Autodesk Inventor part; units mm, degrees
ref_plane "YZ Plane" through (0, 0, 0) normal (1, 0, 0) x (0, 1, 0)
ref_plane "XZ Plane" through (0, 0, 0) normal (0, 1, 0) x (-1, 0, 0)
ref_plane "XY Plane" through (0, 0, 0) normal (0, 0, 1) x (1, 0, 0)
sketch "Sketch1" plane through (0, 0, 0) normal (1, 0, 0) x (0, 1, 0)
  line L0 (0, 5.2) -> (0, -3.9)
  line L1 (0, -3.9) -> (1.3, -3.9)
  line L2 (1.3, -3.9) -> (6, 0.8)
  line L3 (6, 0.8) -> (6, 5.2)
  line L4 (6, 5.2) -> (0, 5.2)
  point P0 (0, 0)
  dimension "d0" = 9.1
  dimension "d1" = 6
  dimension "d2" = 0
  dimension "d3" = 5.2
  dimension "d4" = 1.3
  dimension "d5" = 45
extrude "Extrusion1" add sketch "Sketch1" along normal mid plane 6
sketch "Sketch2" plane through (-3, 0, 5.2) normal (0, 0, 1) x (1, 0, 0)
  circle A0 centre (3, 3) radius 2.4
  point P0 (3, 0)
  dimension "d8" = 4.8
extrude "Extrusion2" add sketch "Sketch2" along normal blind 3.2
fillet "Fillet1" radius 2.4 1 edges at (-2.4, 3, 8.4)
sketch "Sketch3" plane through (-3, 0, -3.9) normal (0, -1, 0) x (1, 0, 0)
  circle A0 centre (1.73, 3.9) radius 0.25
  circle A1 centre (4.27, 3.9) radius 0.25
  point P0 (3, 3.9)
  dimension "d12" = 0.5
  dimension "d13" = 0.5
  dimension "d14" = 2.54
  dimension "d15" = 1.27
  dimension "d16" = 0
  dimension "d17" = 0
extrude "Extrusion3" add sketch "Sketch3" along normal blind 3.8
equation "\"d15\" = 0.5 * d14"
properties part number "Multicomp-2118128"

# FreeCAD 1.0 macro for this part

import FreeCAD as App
import Part
import Sketcher
from FreeCAD import Vector
Q = App.Units.Quantity


def edges_at(feature, points):
    """Names of the edges that pass closest to the given points."""
    edges = feature.Shape.Edges
    near = lambda p: min(range(len(edges)), key=lambda i: edges[i].distToShape(Part.Vertex(*p))[0])
    return sorted({f"Edge{near(p) + 1}" for p in points})

doc = App.newDocument("Part")
body = doc.addObject("PartDesign::Body", "Body")

# Sketch on YZ plane
sketch1 = body.newObject("Sketcher::SketchObject", "Sketch")
sketch1.AttachmentSupport = (doc.getObject("YZ_Plane"), [""])
sketch1.MapMode = "FlatFace"
sketch1.addGeometry(Part.LineSegment(Vector(6, 5.2, 0), Vector(0, 5.2, 0)), False)
sketch1.addGeometry(Part.LineSegment(Vector(0, 5.2, 0), Vector(0, -3.9, 0)), False)
sketch1.addGeometry(Part.LineSegment(Vector(0, -3.9, 0), Vector(1.3, -3.9, 0)), False)
sketch1.addGeometry(Part.LineSegment(Vector(1.3, -3.9, 0), Vector(6, 0.8, 0)), False)
sketch1.addGeometry(Part.LineSegment(Vector(6, 0.8, 0), Vector(6, 5.2, 0)), False)
sketch1.addConstraint(Sketcher.Constraint("Coincident", 0, 2, 1, 1))
sketch1.addConstraint(Sketcher.Constraint("Coincident", 1, 2, 2, 1))
sketch1.addConstraint(Sketcher.Constraint("Coincident", 2, 2, 3, 1))
sketch1.addConstraint(Sketcher.Constraint("Coincident", 3, 2, 4, 1))
sketch1.addConstraint(Sketcher.Constraint("Coincident", 4, 2, 0, 1))
sketch1.addConstraint(Sketcher.Constraint("Horizontal", 0))
sketch1.addConstraint(Sketcher.Constraint("Vertical", 1))
sketch1.addConstraint(Sketcher.Constraint("Horizontal", 2))
sketch1.addConstraint(Sketcher.Constraint("Vertical", 4))
sketch1.addConstraint(Sketcher.Constraint("PointOnObject", 0, 2, -2))
sketch1.addConstraint(Sketcher.Constraint("DistanceX", 0, 2, 0, 1, Q("6 mm")))
sketch1.addConstraint(Sketcher.Constraint("Angle", 3, Q("45 deg")))
sketch1.addConstraint(Sketcher.Constraint("DistanceX", 2, 1, 2, 2, Q("1.3 mm")))
sketch1.addConstraint(Sketcher.Constraint("DistanceY", 1, 2, 1, 1, Q("9.1 mm")))
sketch1.addConstraint(Sketcher.Constraint("DistanceY", -1, 1, 0, 2, Q("5.2 mm")))
pad1 = body.newObject("PartDesign::Pad", "Pad")
pad1.Profile = sketch1
pad1.Length = 6
pad1.Midplane = True

# Sketch on XY plane
sketch2 = body.newObject("Sketcher::SketchObject", "Sketch001")
sketch2.AttachmentSupport = (doc.getObject("XY_Plane"), [""])
sketch2.MapMode = "FlatFace"
sketch2.AttachmentOffset = App.Placement(Vector(0, 0, 5.2), App.Rotation())
sketch2.addGeometry(Part.Circle(Vector(0, 3, 0), Vector(0, 0, 1), 2.4), False)
sketch2.addConstraint(Sketcher.Constraint("PointOnObject", 0, 3, -2))
sketch2.addConstraint(Sketcher.Constraint("Diameter", 0, Q("4.8 mm")))
sketch2.addConstraint(Sketcher.Constraint("DistanceY", -1, 1, 0, 3, Q("3 mm")))
pad2 = body.newObject("PartDesign::Pad", "Pad001")
pad2.Profile = sketch2
pad2.Length = 3.2
doc.recompute()

fillet = body.newObject("PartDesign::Fillet", "Fillet")
fillet.Base = (pad2, edges_at(pad2, [(-2.4, 3, 8.4)]))
fillet.Radius = 2.4

# Sketch on XZ plane
sketch3 = body.newObject("Sketcher::SketchObject", "Sketch002")
sketch3.AttachmentSupport = (doc.getObject("XZ_Plane"), [""])
sketch3.MapMode = "FlatFace"
sketch3.addGeometry(Part.Circle(Vector(-1.27, 0, 0), Vector(0, 0, 1), 0.25), False)
sketch3.addGeometry(Part.Circle(Vector(1.27, 0, 0), Vector(0, 0, 1), 0.25), False)
sketch3.addConstraint(Sketcher.Constraint("Equal", 0, 1))
sketch3.addConstraint(Sketcher.Constraint("Symmetric", 0, 3, 1, 3, -1, 1))
sketch3.addConstraint(Sketcher.Constraint("PointOnObject", 0, 3, -1))
sketch3.addConstraint(Sketcher.Constraint("Diameter", 0, Q("0.5 mm")))
sketch3.addConstraint(Sketcher.Constraint("DistanceX", 0, 3, -1, 1, Q("1.27 mm")))
pad3 = body.newObject("PartDesign::Pad", "Pad002")
pad3.Profile = sketch3
pad3.Length = 3.8

doc.recompute()
